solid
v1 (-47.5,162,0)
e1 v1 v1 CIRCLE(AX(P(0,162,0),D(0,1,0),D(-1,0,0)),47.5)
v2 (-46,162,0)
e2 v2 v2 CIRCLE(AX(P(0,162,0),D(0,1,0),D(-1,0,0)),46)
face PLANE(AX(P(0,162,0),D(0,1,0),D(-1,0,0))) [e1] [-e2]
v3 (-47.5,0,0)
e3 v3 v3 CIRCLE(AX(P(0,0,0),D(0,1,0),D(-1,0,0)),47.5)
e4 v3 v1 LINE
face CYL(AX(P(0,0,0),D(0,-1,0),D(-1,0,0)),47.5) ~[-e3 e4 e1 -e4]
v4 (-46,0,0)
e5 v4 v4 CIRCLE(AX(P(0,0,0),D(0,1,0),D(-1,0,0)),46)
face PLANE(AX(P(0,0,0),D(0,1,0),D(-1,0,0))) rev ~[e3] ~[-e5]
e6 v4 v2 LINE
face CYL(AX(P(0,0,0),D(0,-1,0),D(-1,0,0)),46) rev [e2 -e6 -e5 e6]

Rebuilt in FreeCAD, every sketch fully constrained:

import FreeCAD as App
import Part
import Sketcher

V = App.Vector

doc = App.newDocument("Part")
body = doc.addObject("PartDesign::Body", "Body")

# Sketch on XZ plane
sketch1 = body.newObject("Sketcher::SketchObject", "Sketch")
sketch1.AttachmentSupport = (doc.getObject("XZ_Plane"), [""])
sketch1.MapMode = "FlatFace"
sketch1.addGeometry([
    Part.Circle(V(0, 0, 0), V(0, 0, 1), 47.5),
    Part.Circle(V(0, 0, 0), V(0, 0, 1), 46),
], False)
sketch1.addConstraint([
    Sketcher.Constraint("Coincident", 0, 3, -1, 1),
    Sketcher.Constraint("Coincident", 1, 3, -1, 1),
    Sketcher.Constraint("Diameter", 0, 95.0),
    Sketcher.Constraint("Diameter", 1, 92.0),
])
pad1 = body.newObject("PartDesign::Pad", "Pad")
pad1.Profile = sketch1
pad1.Length = 162
pad1.Reversed = True

doc.recompute()
